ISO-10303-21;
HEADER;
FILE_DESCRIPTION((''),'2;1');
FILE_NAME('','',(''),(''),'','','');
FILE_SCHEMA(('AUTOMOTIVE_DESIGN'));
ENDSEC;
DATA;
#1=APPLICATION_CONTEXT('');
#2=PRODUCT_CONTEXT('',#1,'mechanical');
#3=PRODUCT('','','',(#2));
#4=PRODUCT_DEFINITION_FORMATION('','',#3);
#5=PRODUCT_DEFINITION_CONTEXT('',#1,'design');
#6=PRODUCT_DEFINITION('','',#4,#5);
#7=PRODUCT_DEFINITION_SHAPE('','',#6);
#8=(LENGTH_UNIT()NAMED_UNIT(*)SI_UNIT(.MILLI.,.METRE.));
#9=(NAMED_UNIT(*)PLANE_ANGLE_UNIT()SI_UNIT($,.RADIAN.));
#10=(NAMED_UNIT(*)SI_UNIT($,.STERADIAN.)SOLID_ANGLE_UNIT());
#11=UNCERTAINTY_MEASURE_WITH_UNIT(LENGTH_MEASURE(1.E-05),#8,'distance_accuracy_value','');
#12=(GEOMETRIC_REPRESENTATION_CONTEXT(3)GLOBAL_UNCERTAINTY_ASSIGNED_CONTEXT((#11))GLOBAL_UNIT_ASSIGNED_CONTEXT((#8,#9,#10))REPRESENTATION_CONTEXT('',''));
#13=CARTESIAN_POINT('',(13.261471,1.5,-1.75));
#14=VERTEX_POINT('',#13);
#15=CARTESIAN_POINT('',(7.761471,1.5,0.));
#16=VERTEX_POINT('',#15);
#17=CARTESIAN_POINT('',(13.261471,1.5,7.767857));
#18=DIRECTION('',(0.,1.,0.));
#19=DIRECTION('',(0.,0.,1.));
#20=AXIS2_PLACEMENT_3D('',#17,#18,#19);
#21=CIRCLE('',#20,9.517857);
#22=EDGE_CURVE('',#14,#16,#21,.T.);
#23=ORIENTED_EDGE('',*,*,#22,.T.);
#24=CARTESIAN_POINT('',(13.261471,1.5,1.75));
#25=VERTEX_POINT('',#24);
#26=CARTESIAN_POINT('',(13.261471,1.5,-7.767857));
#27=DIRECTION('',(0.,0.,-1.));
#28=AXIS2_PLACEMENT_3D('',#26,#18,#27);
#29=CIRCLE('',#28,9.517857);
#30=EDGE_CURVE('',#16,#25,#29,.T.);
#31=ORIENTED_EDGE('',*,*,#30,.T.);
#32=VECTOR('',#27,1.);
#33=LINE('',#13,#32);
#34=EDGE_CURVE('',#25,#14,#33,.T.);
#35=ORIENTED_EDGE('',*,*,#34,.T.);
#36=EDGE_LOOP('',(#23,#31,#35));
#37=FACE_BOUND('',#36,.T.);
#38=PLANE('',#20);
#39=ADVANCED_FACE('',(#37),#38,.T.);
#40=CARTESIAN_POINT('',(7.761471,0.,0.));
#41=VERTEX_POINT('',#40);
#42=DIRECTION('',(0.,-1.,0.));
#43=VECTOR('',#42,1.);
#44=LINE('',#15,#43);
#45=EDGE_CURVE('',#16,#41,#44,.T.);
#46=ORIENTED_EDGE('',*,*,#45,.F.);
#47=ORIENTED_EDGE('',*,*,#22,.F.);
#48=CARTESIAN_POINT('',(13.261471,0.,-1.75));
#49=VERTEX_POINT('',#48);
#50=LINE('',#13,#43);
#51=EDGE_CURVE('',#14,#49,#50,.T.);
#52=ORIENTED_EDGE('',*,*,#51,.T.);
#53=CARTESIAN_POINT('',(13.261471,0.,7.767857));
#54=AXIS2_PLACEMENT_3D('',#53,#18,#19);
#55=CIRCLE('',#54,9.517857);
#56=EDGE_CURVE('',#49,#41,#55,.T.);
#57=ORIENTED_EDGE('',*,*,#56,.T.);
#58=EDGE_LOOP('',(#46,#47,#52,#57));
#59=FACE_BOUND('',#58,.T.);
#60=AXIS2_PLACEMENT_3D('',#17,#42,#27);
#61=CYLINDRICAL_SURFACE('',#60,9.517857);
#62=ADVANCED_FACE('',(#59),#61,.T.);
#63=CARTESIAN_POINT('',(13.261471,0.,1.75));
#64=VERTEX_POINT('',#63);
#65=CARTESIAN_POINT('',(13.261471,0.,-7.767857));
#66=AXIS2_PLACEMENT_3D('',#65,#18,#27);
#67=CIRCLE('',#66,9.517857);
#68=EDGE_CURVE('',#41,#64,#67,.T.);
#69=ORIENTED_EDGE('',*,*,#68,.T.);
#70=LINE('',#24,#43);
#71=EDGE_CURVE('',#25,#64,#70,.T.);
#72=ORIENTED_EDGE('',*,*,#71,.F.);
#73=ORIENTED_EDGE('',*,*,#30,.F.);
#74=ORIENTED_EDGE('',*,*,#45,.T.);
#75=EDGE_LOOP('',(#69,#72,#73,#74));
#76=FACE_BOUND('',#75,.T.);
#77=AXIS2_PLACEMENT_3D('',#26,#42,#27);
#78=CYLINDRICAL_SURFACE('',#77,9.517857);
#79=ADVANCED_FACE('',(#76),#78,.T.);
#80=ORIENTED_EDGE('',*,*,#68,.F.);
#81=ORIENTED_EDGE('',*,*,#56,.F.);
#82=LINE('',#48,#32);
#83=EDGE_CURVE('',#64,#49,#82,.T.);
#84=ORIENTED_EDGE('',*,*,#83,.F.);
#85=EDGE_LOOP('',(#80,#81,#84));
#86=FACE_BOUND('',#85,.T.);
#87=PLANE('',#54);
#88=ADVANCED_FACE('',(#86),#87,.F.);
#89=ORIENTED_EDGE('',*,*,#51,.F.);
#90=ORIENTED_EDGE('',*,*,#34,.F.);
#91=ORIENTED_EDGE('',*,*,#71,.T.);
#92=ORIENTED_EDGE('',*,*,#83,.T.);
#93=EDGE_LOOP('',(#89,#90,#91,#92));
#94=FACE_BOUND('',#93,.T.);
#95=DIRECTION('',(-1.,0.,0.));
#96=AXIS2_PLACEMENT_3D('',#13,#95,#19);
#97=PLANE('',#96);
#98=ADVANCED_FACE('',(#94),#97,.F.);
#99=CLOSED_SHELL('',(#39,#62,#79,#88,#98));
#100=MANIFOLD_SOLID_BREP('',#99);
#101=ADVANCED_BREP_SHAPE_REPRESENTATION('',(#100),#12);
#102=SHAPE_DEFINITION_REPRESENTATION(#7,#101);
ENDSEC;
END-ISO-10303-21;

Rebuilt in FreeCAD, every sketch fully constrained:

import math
import FreeCAD as App
import Part
import Sketcher

V = App.Vector
Q = App.Units.Quantity

doc = App.newDocument("Part")
body = doc.addObject("PartDesign::Body", "Body")

sketch1 = body.newObject("Sketcher::SketchObject", "Sketch")
sketch1.AttachmentSupport = (doc.getObject("XZ_Plane"), [""])
sketch1.MapMode = "FlatFace"
sketch1.addGeometry(Part.LineSegment(V(13.3, 1.8, 0), V(13.3, -1.8, 0)), False)
sketch1.addGeometry(Part.ArcOfCircle(Part.Circle(V(13.3, 7.8, 0), V(0, 0, 1), 9.5), math.radians(-125), math.radians(-90)), False)
sketch1.addGeometry(Part.ArcOfCircle(Part.Circle(V(13.3, -7.8, 0), V(0, 0, 1), 9.5), math.radians(90), math.radians(125)), False)
sketch1.addConstraint(Sketcher.Constraint("Coincident", 0, 2, 1, 2))
sketch1.addConstraint(Sketcher.Constraint("Coincident", 1, 1, 2, 2))
sketch1.addConstraint(Sketcher.Constraint("Coincident", 2, 1, 0, 1))
sketch1.addConstraint(Sketcher.Constraint("Vertical", 0))
sketch1.addConstraint(Sketcher.Constraint("Equal", 1, 2))
sketch1.addConstraint(Sketcher.Constraint("Symmetric", 1, 3, 2, 3, -1))
sketch1.addConstraint(Sketcher.Constraint("Vertical", 2, 3, 0, 2))
sketch1.addConstraint(Sketcher.Constraint("DistanceY", 0, 2, 0, 1, Q("3.5 mm")))
sketch1.addConstraint(Sketcher.Constraint("DistanceX", 1, 1, 0, 2, Q("5.5 mm")))
sketch1.addConstraint(Sketcher.Constraint("DistanceX", -1, 1, 1, 3, Q("13.261471 mm")))
pad1 = body.newObject("PartDesign::Pad", "Pad")
pad1.Profile = sketch1
pad1.Length = 1.5
pad1.Reversed = True

doc.recompute()
